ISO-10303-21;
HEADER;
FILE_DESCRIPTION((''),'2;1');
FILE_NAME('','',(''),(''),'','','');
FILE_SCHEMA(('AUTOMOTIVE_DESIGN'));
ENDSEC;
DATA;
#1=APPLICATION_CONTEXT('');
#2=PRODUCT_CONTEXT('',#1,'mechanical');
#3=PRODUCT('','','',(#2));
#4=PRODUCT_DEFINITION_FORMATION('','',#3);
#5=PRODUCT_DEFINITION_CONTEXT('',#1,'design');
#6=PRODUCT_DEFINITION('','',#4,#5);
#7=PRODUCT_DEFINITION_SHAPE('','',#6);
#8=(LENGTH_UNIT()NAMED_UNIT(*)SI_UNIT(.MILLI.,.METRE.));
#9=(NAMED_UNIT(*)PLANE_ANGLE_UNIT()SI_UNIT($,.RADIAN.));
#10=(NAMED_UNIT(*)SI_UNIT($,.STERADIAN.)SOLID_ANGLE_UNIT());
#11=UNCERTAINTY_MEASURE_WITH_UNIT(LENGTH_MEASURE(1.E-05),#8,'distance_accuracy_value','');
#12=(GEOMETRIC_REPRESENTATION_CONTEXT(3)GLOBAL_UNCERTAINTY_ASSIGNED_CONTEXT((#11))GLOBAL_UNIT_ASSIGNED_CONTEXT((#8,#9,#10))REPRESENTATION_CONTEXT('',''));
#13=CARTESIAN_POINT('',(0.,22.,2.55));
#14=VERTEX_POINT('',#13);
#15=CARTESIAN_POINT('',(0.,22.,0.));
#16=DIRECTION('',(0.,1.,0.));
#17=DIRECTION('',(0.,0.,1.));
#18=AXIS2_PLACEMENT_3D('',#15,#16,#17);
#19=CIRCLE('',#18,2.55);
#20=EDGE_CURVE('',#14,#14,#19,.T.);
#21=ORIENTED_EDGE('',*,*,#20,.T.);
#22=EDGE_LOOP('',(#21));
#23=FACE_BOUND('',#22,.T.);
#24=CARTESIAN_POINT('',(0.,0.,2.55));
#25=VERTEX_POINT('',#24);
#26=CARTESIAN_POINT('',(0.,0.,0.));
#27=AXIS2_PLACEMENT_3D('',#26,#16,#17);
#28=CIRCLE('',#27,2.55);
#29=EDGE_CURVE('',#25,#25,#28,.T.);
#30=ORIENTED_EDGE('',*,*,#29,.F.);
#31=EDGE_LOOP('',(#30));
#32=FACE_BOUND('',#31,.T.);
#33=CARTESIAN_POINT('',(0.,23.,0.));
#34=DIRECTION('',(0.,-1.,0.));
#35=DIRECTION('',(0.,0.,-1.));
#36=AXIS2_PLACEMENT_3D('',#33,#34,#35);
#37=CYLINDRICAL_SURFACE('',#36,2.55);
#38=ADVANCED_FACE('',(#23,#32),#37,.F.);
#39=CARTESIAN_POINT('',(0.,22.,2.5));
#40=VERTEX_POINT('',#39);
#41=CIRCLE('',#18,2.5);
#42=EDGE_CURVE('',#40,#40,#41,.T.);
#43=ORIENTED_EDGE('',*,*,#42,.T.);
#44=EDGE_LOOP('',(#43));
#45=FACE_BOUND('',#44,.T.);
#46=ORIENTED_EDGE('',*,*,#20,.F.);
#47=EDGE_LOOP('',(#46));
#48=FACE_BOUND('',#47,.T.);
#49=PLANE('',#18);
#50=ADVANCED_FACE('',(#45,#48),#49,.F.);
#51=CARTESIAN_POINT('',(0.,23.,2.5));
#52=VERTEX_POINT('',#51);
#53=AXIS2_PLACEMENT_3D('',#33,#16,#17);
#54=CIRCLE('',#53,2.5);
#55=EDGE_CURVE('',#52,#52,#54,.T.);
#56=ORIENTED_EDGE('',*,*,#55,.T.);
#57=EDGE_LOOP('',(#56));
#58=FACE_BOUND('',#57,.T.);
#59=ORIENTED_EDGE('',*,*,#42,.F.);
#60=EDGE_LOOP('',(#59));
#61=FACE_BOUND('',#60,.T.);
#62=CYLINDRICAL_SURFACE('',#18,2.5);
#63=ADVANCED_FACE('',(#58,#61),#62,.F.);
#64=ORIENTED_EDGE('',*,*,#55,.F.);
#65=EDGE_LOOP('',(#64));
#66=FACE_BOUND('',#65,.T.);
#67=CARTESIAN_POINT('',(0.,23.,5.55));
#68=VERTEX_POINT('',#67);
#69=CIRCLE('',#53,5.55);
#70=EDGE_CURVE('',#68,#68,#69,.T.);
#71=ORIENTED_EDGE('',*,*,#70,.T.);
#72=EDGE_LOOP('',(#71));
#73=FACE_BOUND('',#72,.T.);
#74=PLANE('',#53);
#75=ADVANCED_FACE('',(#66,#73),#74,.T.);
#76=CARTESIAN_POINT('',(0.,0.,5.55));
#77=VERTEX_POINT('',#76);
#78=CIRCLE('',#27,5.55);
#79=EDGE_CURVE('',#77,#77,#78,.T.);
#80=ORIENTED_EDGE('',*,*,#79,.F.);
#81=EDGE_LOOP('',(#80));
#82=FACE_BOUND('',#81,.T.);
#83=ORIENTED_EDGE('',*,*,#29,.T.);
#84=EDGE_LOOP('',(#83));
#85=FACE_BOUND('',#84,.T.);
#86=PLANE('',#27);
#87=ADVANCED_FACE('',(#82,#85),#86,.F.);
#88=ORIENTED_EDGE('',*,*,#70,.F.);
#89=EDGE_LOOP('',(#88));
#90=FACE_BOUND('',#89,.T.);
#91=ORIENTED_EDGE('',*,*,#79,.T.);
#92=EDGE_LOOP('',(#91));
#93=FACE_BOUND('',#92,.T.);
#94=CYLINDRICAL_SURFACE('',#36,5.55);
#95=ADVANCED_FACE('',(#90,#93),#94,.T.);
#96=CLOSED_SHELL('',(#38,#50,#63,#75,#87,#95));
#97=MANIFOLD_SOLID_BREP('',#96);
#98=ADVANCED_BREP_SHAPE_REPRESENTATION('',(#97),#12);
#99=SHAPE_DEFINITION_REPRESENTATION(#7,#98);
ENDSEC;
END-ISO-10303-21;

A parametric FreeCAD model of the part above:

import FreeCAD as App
import Part
import Sketcher
Q = App.Units.Quantity

doc = App.newDocument("Part")
params = doc.addObject("Spreadsheet::Sheet", "Params")
for row, (alias, value) in enumerate([
    ("sketch1_diameter", "11.1 mm"),
    ("sketch1_diameter2", "5.1 mm"),
    ("pad1_length", "23 mm"),
    ("sketch2_diameter", "5 mm"),
    ("sketch2_diameter2", "5.1 mm"),
    ("pad2_length", "1 mm"),
], start=1):
    params.set(f"A{row}", alias)
    params.set(f"B{row}", "=" + value)
    params.setAlias(f"B{row}", alias)

body = doc.addObject("PartDesign::Body", "Body")

# Sketch on XZ plane
sketch1 = body.newObject("Sketcher::SketchObject", "Sketch")
sketch1.AttachmentSupport = (doc.getObject("XZ_Plane"), [""])
sketch1.MapMode = "FlatFace"
sketch1.addGeometry(Part.Circle(App.Vector(0, 0, 0), App.Vector(0, 0, 1), 5.5), False)
sketch1.addGeometry(Part.Circle(App.Vector(0, 0, 0), App.Vector(0, 0, 1), 2.5), False)
sketch1.addConstraint(Sketcher.Constraint("Coincident", 0, 3, -1, 1))
sketch1.addConstraint(Sketcher.Constraint("Coincident", 1, 3, -1, 1))
sketch1.addConstraint(Sketcher.Constraint("Diameter", 0, Q("11.1 mm")))
sketch1.addConstraint(Sketcher.Constraint("Diameter", 1, Q("5.1 mm")))
sketch1.setExpression("Constraints[2]", "Params.sketch1_diameter")
sketch1.setExpression("Constraints[3]", "Params.sketch1_diameter2")
pad1 = body.newObject("PartDesign::Pad", "Pad")
pad1.Profile = sketch1
pad1.setExpression("Length", "Params.pad1_length")
pad1.Reversed = True

# Sketch on XZ plane
sketch2 = body.newObject("Sketcher::SketchObject", "Sketch001")
sketch2.AttachmentSupport = (doc.getObject("XZ_Plane"), [""])
sketch2.MapMode = "FlatFace"
sketch2.AttachmentOffset = App.Placement(App.Vector(0, 0, -22), App.Rotation())
sketch2.addGeometry(Part.Circle(App.Vector(0, 0, 0), App.Vector(0, 0, 1), 2.5), False)
sketch2.addGeometry(Part.Circle(App.Vector(0, 0, 0), App.Vector(0, 0, 1), 2.5), False)
sketch2.addConstraint(Sketcher.Constraint("Coincident", 0, 3, -1, 1))
sketch2.addConstraint(Sketcher.Constraint("Coincident", 1, 3, -1, 1))
sketch2.addConstraint(Sketcher.Constraint("Diameter", 1, Q("5 mm")))
sketch2.addConstraint(Sketcher.Constraint("Diameter", 0, Q("5.1 mm")))
sketch2.setExpression("Constraints[2]", "Params.sketch2_diameter")
sketch2.setExpression("Constraints[3]", "Params.sketch2_diameter2")
pad2 = body.newObject("PartDesign::Pad", "Pad001")
pad2.Profile = sketch2
pad2.setExpression("Length", "Params.pad2_length")
pad2.Reversed = True

doc.recompute()
